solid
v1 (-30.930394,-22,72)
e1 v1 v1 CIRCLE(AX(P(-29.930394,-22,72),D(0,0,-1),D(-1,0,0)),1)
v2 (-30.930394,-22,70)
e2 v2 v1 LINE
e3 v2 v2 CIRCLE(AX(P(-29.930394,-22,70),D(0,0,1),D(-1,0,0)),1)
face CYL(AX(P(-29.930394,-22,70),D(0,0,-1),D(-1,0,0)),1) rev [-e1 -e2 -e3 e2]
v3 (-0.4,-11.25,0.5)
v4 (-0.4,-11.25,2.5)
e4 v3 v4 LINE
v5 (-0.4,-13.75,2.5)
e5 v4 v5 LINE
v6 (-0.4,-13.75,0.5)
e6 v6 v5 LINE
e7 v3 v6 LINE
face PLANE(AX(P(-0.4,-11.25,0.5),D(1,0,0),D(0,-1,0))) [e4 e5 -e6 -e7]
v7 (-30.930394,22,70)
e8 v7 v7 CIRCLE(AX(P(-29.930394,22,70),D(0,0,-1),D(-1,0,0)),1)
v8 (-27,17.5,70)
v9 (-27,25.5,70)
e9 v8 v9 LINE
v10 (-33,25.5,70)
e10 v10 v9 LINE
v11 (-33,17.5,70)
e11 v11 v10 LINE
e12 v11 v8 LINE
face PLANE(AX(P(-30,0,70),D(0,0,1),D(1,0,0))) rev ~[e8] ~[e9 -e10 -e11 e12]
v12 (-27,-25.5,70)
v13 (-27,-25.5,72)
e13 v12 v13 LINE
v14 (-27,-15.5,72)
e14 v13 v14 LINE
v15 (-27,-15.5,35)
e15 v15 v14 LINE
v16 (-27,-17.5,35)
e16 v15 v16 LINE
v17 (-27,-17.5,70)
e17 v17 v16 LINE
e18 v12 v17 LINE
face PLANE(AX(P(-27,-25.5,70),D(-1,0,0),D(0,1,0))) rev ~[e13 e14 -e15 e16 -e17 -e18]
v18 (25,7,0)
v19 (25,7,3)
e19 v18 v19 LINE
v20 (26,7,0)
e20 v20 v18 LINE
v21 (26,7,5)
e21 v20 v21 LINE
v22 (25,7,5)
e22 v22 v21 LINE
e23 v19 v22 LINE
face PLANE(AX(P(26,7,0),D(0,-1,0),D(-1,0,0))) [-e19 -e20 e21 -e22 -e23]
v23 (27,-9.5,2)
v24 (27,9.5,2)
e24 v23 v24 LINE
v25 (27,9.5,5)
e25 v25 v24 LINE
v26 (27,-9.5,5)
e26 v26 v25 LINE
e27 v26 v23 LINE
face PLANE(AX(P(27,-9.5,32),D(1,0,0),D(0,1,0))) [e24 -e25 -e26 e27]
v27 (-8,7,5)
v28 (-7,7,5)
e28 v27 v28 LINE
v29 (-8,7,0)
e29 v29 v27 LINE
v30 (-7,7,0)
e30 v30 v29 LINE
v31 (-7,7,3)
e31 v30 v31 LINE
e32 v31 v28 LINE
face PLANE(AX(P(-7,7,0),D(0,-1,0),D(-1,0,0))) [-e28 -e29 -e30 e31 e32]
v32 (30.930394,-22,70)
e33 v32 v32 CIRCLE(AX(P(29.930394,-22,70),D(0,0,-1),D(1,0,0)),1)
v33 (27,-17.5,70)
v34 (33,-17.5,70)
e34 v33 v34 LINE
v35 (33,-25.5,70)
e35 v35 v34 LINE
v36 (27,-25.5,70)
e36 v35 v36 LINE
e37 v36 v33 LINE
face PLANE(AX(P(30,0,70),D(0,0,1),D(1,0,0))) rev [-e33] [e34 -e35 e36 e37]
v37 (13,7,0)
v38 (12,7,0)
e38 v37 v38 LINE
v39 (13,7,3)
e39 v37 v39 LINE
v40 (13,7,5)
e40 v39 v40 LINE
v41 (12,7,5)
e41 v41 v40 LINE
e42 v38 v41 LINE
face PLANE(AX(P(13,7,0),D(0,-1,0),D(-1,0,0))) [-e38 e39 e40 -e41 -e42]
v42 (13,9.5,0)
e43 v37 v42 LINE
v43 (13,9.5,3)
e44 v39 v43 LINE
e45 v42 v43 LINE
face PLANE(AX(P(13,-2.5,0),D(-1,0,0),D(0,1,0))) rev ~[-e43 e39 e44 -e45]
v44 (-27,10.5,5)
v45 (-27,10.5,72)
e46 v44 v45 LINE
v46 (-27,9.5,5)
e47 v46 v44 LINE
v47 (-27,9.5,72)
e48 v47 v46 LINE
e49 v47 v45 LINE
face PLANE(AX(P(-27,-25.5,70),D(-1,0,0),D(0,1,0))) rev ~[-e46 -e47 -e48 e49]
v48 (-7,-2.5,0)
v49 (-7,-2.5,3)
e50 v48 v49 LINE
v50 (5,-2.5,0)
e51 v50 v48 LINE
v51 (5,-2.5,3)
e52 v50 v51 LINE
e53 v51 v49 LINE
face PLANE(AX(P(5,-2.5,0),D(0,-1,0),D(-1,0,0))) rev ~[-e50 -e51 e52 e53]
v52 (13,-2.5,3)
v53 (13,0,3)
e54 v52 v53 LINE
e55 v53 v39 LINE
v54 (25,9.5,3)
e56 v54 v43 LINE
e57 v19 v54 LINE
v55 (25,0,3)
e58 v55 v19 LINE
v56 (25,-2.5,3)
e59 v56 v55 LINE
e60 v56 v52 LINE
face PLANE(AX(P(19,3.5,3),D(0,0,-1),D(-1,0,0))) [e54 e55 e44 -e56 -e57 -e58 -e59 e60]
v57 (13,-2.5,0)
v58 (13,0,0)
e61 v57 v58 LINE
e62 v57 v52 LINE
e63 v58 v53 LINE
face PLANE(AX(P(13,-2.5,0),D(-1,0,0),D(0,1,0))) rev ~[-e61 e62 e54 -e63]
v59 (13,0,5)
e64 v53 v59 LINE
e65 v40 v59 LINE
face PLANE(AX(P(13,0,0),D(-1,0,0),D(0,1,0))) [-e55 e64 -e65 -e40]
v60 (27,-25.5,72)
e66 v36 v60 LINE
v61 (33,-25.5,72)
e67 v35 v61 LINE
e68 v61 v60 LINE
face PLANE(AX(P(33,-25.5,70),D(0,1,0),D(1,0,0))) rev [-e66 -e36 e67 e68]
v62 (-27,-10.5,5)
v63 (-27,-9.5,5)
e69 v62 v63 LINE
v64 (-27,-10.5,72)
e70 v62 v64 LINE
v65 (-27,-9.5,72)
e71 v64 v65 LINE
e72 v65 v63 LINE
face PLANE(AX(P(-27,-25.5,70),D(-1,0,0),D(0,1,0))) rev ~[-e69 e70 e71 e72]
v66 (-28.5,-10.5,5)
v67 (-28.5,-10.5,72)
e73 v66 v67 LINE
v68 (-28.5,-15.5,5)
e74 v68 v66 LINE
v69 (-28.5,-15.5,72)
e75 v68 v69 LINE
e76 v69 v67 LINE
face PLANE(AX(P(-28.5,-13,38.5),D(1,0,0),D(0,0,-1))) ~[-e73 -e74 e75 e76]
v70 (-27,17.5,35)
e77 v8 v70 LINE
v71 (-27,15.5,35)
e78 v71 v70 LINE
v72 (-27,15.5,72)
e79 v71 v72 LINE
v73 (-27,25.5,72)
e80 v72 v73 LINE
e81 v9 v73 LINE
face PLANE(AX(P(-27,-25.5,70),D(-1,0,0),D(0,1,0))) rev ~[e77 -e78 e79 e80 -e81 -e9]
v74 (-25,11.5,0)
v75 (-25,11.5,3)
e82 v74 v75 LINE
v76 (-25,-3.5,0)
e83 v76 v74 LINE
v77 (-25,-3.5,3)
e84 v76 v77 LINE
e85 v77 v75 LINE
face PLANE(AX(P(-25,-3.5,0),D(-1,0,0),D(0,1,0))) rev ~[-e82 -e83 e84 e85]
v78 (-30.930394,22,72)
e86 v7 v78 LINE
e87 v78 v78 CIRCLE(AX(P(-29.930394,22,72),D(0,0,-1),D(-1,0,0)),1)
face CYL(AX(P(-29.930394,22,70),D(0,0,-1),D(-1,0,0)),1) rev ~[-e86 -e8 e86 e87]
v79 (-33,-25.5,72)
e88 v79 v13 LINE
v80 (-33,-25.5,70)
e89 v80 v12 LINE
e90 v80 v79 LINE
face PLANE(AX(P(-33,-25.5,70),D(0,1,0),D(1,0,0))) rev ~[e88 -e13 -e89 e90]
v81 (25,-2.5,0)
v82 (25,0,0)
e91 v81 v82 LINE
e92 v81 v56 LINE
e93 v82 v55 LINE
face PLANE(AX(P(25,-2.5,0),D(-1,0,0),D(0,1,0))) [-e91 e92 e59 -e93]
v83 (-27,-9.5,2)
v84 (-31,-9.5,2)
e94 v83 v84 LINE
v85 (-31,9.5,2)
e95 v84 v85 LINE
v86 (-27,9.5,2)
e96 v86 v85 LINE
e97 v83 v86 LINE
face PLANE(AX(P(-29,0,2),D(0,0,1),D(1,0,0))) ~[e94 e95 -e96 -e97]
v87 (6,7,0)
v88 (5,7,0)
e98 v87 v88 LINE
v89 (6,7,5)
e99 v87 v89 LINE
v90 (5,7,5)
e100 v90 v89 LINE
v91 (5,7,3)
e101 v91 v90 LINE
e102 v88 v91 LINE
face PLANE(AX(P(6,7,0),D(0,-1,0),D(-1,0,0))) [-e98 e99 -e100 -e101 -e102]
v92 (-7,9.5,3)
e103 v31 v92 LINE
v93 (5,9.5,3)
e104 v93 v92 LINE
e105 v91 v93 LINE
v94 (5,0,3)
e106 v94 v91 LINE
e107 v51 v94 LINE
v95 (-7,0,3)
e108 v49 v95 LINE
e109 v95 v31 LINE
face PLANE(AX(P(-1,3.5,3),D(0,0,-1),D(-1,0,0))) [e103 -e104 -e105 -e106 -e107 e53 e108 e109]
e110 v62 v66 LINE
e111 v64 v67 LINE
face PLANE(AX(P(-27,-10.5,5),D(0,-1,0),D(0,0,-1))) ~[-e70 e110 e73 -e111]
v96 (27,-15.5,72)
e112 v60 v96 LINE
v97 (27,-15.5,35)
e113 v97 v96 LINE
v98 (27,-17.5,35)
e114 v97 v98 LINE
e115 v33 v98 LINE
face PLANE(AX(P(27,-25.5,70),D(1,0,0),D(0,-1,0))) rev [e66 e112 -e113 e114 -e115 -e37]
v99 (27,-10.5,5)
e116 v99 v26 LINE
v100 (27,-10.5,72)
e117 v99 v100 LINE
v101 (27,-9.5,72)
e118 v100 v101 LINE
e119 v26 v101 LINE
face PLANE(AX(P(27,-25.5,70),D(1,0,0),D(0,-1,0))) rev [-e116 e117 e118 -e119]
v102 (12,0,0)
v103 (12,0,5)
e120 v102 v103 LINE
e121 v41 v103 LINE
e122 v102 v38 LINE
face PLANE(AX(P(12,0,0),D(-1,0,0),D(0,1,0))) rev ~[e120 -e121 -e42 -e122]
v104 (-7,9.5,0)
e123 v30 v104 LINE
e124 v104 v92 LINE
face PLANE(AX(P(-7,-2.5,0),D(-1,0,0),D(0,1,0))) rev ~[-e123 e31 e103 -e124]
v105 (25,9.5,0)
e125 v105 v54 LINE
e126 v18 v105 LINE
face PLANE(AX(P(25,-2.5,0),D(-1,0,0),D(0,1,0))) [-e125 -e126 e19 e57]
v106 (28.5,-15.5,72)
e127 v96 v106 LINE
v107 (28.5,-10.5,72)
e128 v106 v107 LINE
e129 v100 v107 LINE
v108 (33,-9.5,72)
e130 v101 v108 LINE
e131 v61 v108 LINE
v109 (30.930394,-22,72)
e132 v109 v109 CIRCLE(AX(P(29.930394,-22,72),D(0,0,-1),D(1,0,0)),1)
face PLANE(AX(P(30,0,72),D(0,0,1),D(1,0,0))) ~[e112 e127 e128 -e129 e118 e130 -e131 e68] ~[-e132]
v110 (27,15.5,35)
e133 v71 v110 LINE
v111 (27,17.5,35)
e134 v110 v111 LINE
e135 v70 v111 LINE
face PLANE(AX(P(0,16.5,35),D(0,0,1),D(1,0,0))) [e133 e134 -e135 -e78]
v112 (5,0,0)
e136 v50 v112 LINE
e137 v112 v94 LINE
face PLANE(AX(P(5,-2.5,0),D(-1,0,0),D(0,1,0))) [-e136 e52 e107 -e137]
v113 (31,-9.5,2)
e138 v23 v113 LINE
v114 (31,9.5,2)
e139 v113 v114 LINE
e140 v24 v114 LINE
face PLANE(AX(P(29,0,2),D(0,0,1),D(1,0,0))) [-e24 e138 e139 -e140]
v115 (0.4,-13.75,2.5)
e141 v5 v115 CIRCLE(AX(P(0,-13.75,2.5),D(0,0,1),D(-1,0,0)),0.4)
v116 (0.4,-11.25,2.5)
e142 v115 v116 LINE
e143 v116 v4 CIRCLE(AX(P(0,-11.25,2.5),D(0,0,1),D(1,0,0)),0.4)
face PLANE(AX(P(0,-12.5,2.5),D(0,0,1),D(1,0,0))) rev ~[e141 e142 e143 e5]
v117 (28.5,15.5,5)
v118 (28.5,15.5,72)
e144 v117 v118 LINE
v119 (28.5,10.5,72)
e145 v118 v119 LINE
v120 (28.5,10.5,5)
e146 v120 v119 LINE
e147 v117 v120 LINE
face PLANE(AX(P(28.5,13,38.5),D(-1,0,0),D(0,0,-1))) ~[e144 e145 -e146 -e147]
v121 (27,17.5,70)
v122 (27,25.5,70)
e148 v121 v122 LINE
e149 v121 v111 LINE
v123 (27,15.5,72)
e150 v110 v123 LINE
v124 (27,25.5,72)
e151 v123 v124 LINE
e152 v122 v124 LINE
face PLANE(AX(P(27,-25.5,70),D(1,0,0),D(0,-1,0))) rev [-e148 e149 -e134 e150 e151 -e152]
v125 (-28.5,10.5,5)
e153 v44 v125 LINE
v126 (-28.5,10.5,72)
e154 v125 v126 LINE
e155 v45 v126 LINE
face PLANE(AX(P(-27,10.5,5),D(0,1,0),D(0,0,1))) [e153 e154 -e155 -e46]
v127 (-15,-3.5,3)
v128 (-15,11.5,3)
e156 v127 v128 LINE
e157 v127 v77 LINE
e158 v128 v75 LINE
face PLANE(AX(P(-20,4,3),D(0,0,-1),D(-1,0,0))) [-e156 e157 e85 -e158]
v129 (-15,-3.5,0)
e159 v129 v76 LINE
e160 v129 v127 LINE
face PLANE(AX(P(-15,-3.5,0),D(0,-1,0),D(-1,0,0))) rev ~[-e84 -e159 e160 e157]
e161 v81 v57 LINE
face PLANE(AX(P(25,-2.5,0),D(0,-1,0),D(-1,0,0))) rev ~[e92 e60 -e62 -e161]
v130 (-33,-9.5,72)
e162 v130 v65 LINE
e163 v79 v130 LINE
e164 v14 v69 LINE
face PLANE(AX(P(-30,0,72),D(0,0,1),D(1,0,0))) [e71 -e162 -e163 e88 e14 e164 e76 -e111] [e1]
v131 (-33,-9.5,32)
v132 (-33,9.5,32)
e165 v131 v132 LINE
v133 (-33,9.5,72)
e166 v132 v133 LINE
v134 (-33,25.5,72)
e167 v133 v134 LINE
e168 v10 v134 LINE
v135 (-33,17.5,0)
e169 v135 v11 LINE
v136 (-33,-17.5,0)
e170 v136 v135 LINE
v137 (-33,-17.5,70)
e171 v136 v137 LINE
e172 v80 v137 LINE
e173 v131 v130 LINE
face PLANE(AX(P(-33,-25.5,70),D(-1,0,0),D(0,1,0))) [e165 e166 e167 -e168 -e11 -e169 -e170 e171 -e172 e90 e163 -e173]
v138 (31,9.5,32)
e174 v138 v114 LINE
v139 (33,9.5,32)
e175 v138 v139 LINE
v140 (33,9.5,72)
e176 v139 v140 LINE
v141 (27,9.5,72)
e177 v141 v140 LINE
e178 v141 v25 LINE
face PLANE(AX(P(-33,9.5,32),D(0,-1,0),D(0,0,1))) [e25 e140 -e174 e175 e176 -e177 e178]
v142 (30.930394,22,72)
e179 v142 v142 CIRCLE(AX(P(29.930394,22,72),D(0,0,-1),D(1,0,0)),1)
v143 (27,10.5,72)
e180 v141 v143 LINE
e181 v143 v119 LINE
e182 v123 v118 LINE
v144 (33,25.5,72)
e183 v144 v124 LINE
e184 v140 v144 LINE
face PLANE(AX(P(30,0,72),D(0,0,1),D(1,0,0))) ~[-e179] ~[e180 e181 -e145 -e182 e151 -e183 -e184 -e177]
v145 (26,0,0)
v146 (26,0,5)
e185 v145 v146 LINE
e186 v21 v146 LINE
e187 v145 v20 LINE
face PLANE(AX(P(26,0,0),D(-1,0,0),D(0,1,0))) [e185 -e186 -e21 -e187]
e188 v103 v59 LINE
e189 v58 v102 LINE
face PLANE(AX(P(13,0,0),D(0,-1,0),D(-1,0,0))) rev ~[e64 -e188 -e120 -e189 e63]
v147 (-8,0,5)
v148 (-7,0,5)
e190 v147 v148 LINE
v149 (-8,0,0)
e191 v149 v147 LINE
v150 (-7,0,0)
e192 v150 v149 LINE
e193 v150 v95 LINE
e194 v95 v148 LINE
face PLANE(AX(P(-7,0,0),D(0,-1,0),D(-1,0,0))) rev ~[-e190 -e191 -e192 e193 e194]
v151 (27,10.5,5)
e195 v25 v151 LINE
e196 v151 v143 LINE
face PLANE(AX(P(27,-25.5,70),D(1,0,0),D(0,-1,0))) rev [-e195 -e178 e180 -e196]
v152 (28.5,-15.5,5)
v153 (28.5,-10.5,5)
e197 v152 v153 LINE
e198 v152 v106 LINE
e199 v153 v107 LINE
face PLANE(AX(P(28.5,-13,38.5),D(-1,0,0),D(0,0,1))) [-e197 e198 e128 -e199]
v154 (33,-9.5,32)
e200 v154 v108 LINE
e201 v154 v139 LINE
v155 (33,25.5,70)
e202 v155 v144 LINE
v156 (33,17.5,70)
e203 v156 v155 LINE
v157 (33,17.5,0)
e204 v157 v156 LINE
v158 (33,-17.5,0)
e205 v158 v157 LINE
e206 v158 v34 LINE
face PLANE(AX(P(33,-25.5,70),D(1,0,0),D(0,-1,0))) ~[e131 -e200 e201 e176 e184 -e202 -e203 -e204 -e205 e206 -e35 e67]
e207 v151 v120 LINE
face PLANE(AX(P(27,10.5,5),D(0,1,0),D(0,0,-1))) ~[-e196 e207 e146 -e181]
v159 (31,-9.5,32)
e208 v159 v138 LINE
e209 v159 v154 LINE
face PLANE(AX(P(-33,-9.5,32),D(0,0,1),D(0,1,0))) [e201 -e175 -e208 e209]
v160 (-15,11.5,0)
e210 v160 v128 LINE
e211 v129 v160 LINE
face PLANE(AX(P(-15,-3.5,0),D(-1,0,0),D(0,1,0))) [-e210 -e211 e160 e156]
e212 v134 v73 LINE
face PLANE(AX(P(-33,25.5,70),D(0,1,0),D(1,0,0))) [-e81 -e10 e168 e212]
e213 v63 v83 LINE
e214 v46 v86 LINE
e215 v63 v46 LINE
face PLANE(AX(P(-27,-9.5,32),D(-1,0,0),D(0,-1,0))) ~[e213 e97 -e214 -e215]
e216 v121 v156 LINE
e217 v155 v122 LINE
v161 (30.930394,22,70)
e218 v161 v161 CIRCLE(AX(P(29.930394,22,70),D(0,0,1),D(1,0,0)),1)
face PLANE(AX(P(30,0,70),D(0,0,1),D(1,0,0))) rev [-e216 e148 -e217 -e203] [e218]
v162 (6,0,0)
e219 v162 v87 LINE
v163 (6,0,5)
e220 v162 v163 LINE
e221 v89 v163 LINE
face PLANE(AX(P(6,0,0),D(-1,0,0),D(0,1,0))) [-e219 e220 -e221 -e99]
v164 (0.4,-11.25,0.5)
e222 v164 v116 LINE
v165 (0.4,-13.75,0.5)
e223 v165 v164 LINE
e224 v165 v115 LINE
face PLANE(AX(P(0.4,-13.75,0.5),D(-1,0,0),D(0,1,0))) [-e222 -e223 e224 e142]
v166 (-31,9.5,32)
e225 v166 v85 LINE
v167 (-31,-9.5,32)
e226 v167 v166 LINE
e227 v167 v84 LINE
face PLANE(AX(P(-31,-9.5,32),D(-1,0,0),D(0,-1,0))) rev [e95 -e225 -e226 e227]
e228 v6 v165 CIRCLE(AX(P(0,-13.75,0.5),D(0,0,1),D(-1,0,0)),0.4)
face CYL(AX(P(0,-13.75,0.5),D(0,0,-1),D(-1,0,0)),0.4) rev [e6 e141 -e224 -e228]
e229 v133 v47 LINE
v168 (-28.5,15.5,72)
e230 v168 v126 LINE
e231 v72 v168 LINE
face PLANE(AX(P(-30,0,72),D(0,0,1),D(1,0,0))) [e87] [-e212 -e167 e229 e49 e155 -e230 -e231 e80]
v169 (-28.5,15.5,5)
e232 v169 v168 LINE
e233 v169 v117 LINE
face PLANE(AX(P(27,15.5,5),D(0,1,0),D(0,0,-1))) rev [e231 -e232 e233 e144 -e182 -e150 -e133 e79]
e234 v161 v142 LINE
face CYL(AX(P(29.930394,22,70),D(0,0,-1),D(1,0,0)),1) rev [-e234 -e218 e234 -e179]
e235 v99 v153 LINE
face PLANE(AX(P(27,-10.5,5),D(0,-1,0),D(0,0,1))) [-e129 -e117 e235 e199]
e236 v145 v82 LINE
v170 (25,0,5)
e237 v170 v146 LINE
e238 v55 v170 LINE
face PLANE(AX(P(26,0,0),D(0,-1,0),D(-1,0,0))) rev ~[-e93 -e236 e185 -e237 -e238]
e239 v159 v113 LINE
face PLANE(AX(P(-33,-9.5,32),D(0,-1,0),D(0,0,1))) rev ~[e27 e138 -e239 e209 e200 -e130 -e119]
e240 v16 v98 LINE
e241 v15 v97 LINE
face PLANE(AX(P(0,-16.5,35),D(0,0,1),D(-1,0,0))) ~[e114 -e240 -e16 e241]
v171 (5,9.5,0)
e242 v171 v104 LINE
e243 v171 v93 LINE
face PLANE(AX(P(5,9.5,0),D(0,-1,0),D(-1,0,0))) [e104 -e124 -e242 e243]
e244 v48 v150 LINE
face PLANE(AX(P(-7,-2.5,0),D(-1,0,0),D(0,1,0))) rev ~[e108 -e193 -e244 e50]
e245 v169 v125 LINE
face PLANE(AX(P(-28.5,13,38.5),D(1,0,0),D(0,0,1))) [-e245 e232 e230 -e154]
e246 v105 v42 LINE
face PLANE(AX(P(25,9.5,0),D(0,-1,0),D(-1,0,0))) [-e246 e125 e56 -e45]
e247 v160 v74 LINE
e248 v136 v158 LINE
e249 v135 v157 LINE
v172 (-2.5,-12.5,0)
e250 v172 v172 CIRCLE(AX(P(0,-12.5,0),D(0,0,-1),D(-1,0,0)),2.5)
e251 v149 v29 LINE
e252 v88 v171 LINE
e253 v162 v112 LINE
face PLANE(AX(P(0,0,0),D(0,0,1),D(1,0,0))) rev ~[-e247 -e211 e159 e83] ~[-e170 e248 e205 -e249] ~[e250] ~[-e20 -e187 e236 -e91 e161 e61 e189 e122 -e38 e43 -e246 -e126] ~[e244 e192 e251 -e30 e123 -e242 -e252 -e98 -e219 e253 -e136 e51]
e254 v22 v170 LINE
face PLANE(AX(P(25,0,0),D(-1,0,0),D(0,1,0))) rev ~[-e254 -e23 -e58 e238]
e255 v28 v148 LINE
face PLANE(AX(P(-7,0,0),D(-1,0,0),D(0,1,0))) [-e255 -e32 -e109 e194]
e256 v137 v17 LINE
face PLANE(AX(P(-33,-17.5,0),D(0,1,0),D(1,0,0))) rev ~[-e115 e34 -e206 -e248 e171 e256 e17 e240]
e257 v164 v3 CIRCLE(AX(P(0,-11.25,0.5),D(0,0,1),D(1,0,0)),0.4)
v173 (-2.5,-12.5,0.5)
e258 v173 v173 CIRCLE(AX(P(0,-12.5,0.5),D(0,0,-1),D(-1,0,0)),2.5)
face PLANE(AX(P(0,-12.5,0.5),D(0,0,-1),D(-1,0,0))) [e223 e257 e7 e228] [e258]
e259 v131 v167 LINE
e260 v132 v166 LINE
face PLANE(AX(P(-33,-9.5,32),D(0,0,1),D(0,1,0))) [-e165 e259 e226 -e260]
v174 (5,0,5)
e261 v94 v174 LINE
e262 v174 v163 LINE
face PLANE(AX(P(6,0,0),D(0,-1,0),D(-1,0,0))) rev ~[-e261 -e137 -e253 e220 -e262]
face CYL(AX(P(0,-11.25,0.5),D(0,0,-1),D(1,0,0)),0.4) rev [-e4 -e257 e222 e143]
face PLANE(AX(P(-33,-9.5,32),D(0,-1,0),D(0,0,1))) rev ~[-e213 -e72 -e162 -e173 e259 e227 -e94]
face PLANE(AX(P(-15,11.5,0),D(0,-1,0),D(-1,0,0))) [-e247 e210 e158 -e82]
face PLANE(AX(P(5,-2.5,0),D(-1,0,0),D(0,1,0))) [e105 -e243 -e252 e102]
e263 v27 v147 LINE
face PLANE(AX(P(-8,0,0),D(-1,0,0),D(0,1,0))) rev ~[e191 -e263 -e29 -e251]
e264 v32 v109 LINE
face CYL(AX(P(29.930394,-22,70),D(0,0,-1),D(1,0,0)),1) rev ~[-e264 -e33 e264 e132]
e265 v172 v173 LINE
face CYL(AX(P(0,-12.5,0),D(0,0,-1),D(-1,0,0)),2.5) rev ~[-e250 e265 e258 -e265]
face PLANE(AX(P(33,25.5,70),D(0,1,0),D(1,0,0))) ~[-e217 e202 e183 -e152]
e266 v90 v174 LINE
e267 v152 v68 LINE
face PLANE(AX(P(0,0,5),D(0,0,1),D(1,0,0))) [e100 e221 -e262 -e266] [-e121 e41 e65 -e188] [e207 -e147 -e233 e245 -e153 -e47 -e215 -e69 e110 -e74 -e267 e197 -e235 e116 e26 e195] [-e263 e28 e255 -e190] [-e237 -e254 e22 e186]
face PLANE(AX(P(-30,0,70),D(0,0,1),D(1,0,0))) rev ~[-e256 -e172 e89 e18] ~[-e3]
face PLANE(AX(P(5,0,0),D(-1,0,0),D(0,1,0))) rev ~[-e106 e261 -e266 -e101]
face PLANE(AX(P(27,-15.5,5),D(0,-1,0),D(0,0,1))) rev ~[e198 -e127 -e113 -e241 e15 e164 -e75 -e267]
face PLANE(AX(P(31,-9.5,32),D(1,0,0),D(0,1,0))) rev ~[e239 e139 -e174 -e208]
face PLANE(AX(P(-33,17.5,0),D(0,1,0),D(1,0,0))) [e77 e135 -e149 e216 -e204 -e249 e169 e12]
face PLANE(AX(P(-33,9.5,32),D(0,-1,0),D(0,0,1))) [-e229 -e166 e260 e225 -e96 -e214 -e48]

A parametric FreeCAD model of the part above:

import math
import FreeCAD as App
import Part
import Sketcher

V = App.Vector
Q = App.Units.Quantity

doc = App.newDocument("Part")
params = doc.addObject("Spreadsheet::Sheet", "Params")
for row, (alias, value) in enumerate([
    ("sketch1_width", "66 mm"),
    ("sketch1_height", "35 mm"),
    ("pad1_length", "70 mm"),
    ("sketch2_width", "54 mm"),
    ("sketch2_height", "35 mm"),
    ("pocket1_length", "65 mm"),
    ("sketch3_width", "54 mm"),
    ("sketch3_height", "2 mm"),
    ("pad2_length", "30 mm"),
    ("sketch4_width", "6 mm"),
    ("sketch4_height", "51 mm"),
    ("pad3_length", "2 mm"),
    ("sketch5_diameter", "2 mm"),
    ("pocket2_length", "10 mm"),
    ("sketch6_diameter", "2 mm"),
    ("pocket3_length", "10 mm"),
    ("sketch7_diameter", "5 mm"),
    ("pocket4_length", "0.5 mm"),
    ("sketch8_radius", "0.4 mm"),
    ("sketch8_height", "2.5 mm"),
    ("pocket5_length", "2 mm"),
    ("sketch9_width", "12 mm"),
    ("sketch9_width2", "10 mm"),
    ("sketch9_height", "15 mm"),
    ("pocket6_length", "3 mm"),
    ("sketch10_width", "19 mm"),
    ("sketch10_height", "40 mm"),
    ("sketch11_width", "4 mm"),
    ("sketch11_height", "19 mm"),
    ("pocket8_length", "30 mm"),
    ("sketch12_width", "5 mm"),
    ("sketch12_height", "67 mm"),
    ("pocket9_length", "1.5 mm"),
    ("sketch13_width", "5 mm"),
    ("sketch13_height", "67 mm"),
    ("pocket10_length", "1.5 mm"),
    ("sketch14_width", "1 mm"),
    ("sketch14_height", "7 mm"),
], start=1):
    params.set(f"A{row}", alias)
    params.set(f"B{row}", "=" + value)
    params.setAlias(f"B{row}", alias)

body = doc.addObject("PartDesign::Body", "Body")

# Sketch on XY plane
sketch1 = doc.addObject("Sketcher::SketchObject", "Sketch")
body.addObject(sketch1)
sketch1.AttachmentSupport = (doc.XY_Plane, [""])
sketch1.MapMode = "FlatFace"
sketch1.addGeometry([
    Part.LineSegment(V(-33, 17.5, 0), V(-33, -17.5, 0)),
    Part.LineSegment(V(-33, -17.5, 0), V(33, -17.5, 0)),
    Part.LineSegment(V(33, -17.5, 0), V(33, 17.5, 0)),
    Part.LineSegment(V(33, 17.5, 0), V(-33, 17.5, 0)),
], False)
sketch1.addConstraint([
    Sketcher.Constraint("Coincident", 0, 2, 1, 1),
    Sketcher.Constraint("Coincident", 1, 2, 2, 1),
    Sketcher.Constraint("Coincident", 2, 2, 3, 1),
    Sketcher.Constraint("Coincident", 3, 2, 0, 1),
    Sketcher.Constraint("Vertical", 0),
    Sketcher.Constraint("Horizontal", 1),
    Sketcher.Constraint("Vertical", 2),
    Sketcher.Constraint("Horizontal", 3),
    Sketcher.Constraint("Symmetric", 0, 2, 2, 2, -1, 1),
    Sketcher.Constraint("DistanceX", 1, 1, 1, 2, Q("66 mm")),
    Sketcher.Constraint("DistanceY", 0, 2, 0, 1, Q("35 mm")),
])
sketch1.setExpression("Constraints[9]", "Params.sketch1_width")
sketch1.setExpression("Constraints[10]", "Params.sketch1_height")
pad1 = doc.addObject("PartDesign::Pad", "Pad")
body.addObject(pad1)
pad1.Profile = sketch1
pad1.setExpression("Length", "Params.pad1_length")

# Sketch on XY plane
sketch2 = doc.addObject("Sketcher::SketchObject", "Sketch001")
body.addObject(sketch2)
sketch2.AttachmentSupport = (doc.XY_Plane, [""])
sketch2.MapMode = "FlatFace"
sketch2.AttachmentOffset = App.Placement(V(0, 0, 70), App.Rotation())
sketch2.addGeometry([
    Part.LineSegment(V(-27, 17.5, 0), V(-27, -17.5, 0)),
    Part.LineSegment(V(-27, -17.5, 0), V(27, -17.5, 0)),
    Part.LineSegment(V(27, -17.5, 0), V(27, 17.5, 0)),
    Part.LineSegment(V(27, 17.5, 0), V(-27, 17.5, 0)),
], False)
sketch2.addConstraint([
    Sketcher.Constraint("Coincident", 0, 2, 1, 1),
    Sketcher.Constraint("Coincident", 1, 2, 2, 1),
    Sketcher.Constraint("Coincident", 2, 2, 3, 1),
    Sketcher.Constraint("Coincident", 3, 2, 0, 1),
    Sketcher.Constraint("Vertical", 0),
    Sketcher.Constraint("Horizontal", 1),
    Sketcher.Constraint("Vertical", 2),
    Sketcher.Constraint("Horizontal", 3),
    Sketcher.Constraint("Symmetric", 0, 2, 2, 2, -1, 1),
    Sketcher.Constraint("DistanceX", 1, 1, 1, 2, Q("54 mm")),
    Sketcher.Constraint("DistanceY", 0, 2, 0, 1, Q("35 mm")),
])
sketch2.setExpression("Constraints[9]", "Params.sketch2_width")
sketch2.setExpression("Constraints[10]", "Params.sketch2_height")
pocket1 = doc.addObject("PartDesign::Pocket", "Pocket")
body.addObject(pocket1)
pocket1.Profile = sketch2
pocket1.setExpression("Length", "Params.pocket1_length")

# Sketch on XY plane
sketch3 = doc.addObject("Sketcher::SketchObject", "Sketch002")
body.addObject(sketch3)
sketch3.AttachmentSupport = (doc.XY_Plane, [""])
sketch3.MapMode = "FlatFace"
sketch3.AttachmentOffset = App.Placement(V(0, 0, 5), App.Rotation())
sketch3.addGeometry([
    Part.LineSegment(V(-27, 17.5, 0), V(-27, 15.5, 0)),
    Part.LineSegment(V(-27, 15.5, 0), V(27, 15.5, 0)),
    Part.LineSegment(V(27, 15.5, 0), V(27, 17.5, 0)),
    Part.LineSegment(V(27, 17.5, 0), V(-27, 17.5, 0)),
], False)
sketch3.addConstraint([
    Sketcher.Constraint("Coincident", 0, 2, 1, 1),
    Sketcher.Constraint("Coincident", 1, 2, 2, 1),
    Sketcher.Constraint("Coincident", 2, 2, 3, 1),
    Sketcher.Constraint("Coincident", 3, 2, 0, 1),
    Sketcher.Constraint("Vertical", 0),
    Sketcher.Constraint("Horizontal", 1),
    Sketcher.Constraint("Vertical", 2),
    Sketcher.Constraint("Horizontal", 3),
    Sketcher.Constraint("DistanceX", 1, 1, 1, 2, Q("54 mm")),
    Sketcher.Constraint("DistanceY", 0, 2, 0, 1, Q("2 mm")),
    Sketcher.Constraint("DistanceX", 0, 2, -1, 1, Q("27 mm")),
    Sketcher.Constraint("DistanceY", -1, 1, 0, 2, Q("15.5 mm")),
])
sketch3.setExpression("Constraints[8]", "Params.sketch3_width")
sketch3.setExpression("Constraints[9]", "Params.sketch3_height")
pad2 = doc.addObject("PartDesign::Pad", "Pad001")
body.addObject(pad2)
pad2.Profile = sketch3
pad2.setExpression("Length", "Params.pad2_length")
doc.recompute()

mirrored = doc.addObject("PartDesign::Mirrored", "Mirrored")
body.addObject(mirrored)
mirrored.Originals = [pad2]
mirrored.MirrorPlane = (doc.XZ_Plane, [""])
body.Tip = mirrored

# Sketch on XY plane
sketch4 = doc.addObject("Sketcher::SketchObject", "Sketch003")
body.addObject(sketch4)
sketch4.AttachmentSupport = (doc.XY_Plane, [""])
sketch4.MapMode = "FlatFace"
sketch4.AttachmentOffset = App.Placement(V(0, 0, 70), App.Rotation())
sketch4.addGeometry([
    Part.LineSegment(V(-33, 25.5, 0), V(-33, -25.5, 0)),
    Part.LineSegment(V(-33, -25.5, 0), V(-27, -25.5, 0)),
    Part.LineSegment(V(-27, -25.5, 0), V(-27, 25.5, 0)),
    Part.LineSegment(V(-27, 25.5, 0), V(-33, 25.5, 0)),
], False)
sketch4.addConstraint([
    Sketcher.Constraint("Coincident", 0, 2, 1, 1),
    Sketcher.Constraint("Coincident", 1, 2, 2, 1),
    Sketcher.Constraint("Coincident", 2, 2, 3, 1),
    Sketcher.Constraint("Coincident", 3, 2, 0, 1),
    Sketcher.Constraint("Vertical", 0),
    Sketcher.Constraint("Horizontal", 1),
    Sketcher.Constraint("Vertical", 2),
    Sketcher.Constraint("Horizontal", 3),
    Sketcher.Constraint("DistanceX", 1, 1, 1, 2, Q("6 mm")),
    Sketcher.Constraint("DistanceY", 0, 2, 0, 1, Q("51 mm")),
    Sketcher.Constraint("DistanceX", 0, 2, -1, 1, Q("33 mm")),
    Sketcher.Constraint("DistanceY", 0, 2, -1, 1, Q("25.5 mm")),
])
sketch4.setExpression("Constraints[8]", "Params.sketch4_width")
sketch4.setExpression("Constraints[9]", "Params.sketch4_height")
pad3 = doc.addObject("PartDesign::Pad", "Pad002")
body.addObject(pad3)
pad3.Profile = sketch4
pad3.setExpression("Length", "Params.pad3_length")

# Sketch on XY plane
sketch5 = doc.addObject("Sketcher::SketchObject", "Sketch004")
body.addObject(sketch5)
sketch5.AttachmentSupport = (doc.XY_Plane, [""])
sketch5.MapMode = "FlatFace"
sketch5.AttachmentOffset = App.Placement(V(0, 0, 70), App.Rotation())
sketch5.addGeometry(Part.Circle(V(-29.930394, 22, 0), V(0, 0, 1), 1), False)
sketch5.addConstraint([
    Sketcher.Constraint("Diameter", 0, Q("2 mm")),
    Sketcher.Constraint("DistanceY", -1, 1, 0, 3, Q("22 mm")),
    Sketcher.Constraint("DistanceX", 0, 3, -1, 1, Q("29.930394 mm")),
])
sketch5.setExpression("Constraints[0]", "Params.sketch5_diameter")
pocket2 = doc.addObject("PartDesign::Pocket", "Pocket001")
body.addObject(pocket2)
pocket2.Profile = sketch5
pocket2.setExpression("Length", "Params.pocket2_length")
pocket2.Reversed = True
doc.recompute()

mirrored2 = doc.addObject("PartDesign::Mirrored", "Mirrored001")
body.addObject(mirrored2)
mirrored2.Originals = [pocket2]
mirrored2.MirrorPlane = (doc.XZ_Plane, [""])
body.Tip = mirrored2
doc.recompute()

mirrored3 = doc.addObject("PartDesign::Mirrored", "Mirrored002")
body.addObject(mirrored3)
mirrored3.Originals = [pad3, pocket2]
mirrored3.MirrorPlane = (doc.YZ_Plane, [""])
body.Tip = mirrored3

# Sketch on XY plane
sketch6 = doc.addObject("Sketcher::SketchObject", "Sketch005")
body.addObject(sketch6)
sketch6.AttachmentSupport = (doc.XY_Plane, [""])
sketch6.MapMode = "FlatFace"
sketch6.AttachmentOffset = App.Placement(V(0, 0, 70), App.Rotation())
sketch6.addGeometry(Part.Circle(V(29.930394, -22, 0), V(0, 0, 1), 1), False)
sketch6.addConstraint([
    Sketcher.Constraint("Diameter", 0, Q("2 mm")),
    Sketcher.Constraint("DistanceY", 0, 3, -1, 1, Q("22 mm")),
    Sketcher.Constraint("DistanceX", -1, 1, 0, 3, Q("29.930394 mm")),
])
sketch6.setExpression("Constraints[0]", "Params.sketch6_diameter")
pocket3 = doc.addObject("PartDesign::Pocket", "Pocket002")
body.addObject(pocket3)
pocket3.Profile = sketch6
pocket3.setExpression("Length", "Params.pocket3_length")
pocket3.Reversed = True

# Sketch on XY plane
sketch7 = doc.addObject("Sketcher::SketchObject", "Sketch006")
body.addObject(sketch7)
sketch7.AttachmentSupport = (doc.XY_Plane, [""])
sketch7.MapMode = "FlatFace"
sketch7.addGeometry(Part.Circle(V(0, -12.5, 0), V(0, 0, 1), 2.5), False)
sketch7.addConstraint([
    Sketcher.Constraint("PointOnObject", 0, 3, -2),
    Sketcher.Constraint("Diameter", 0, Q("5 mm")),
    Sketcher.Constraint("DistanceY", 0, 3, -1, 1, Q("12.5 mm")),
])
sketch7.setExpression("Constraints[1]", "Params.sketch7_diameter")
pocket4 = doc.addObject("PartDesign::Pocket", "Pocket003")
body.addObject(pocket4)
pocket4.Profile = sketch7
pocket4.setExpression("Length", "Params.pocket4_length")
pocket4.Reversed = True

# Sketch on XY plane
sketch8 = doc.addObject("Sketcher::SketchObject", "Sketch007")
body.addObject(sketch8)
sketch8.AttachmentSupport = (doc.XY_Plane, [""])
sketch8.MapMode = "FlatFace"
sketch8.AttachmentOffset = App.Placement(V(0, 0, 0.5), App.Rotation())
sketch8.addGeometry([
    Part.LineSegment(V(-0.4, -13.75, 0), V(-0.4, -11.25, 0)),
    Part.ArcOfCircle(Part.Circle(V(0, -11.25, 0), V(0, 0, 1), 0.4), math.radians(0), math.radians(180)),
    Part.LineSegment(V(0.4, -11.25, 0), V(0.4, -13.75, 0)),
    Part.ArcOfCircle(Part.Circle(V(0, -13.75, 0), V(0, 0, 1), 0.4), math.radians(180), math.radians(360)),
], False)
sketch8.addConstraint([
    Sketcher.Constraint("Tangent", 0, 2, 1, 2),
    Sketcher.Constraint("Tangent", 1, 1, 2, 1),
    Sketcher.Constraint("Tangent", 2, 2, 3, 2),
    Sketcher.Constraint("Tangent", 3, 1, 0, 1),
    Sketcher.Constraint("Vertical", 0),
    Sketcher.Constraint("Vertical", 2),
    Sketcher.Constraint("PointOnObject", 1, 3, -2),
    Sketcher.Constraint("Radius", 1, Q("0.4 mm")),
    Sketcher.Constraint("DistanceY", 0, 1, 0, 2, Q("2.5 mm")),
    Sketcher.Constraint("DistanceY", 1, 3, -1, 1, Q("11.25 mm")),
])
sketch8.setExpression("Constraints[7]", "Params.sketch8_radius")
sketch8.setExpression("Constraints[8]", "Params.sketch8_height")
pocket5 = doc.addObject("PartDesign::Pocket", "Pocket004")
body.addObject(pocket5)
pocket5.Profile = sketch8
pocket5.setExpression("Length", "Params.pocket5_length")
pocket5.Reversed = True

# Sketch on XY plane
sketch9 = doc.addObject("Sketcher::SketchObject", "Sketch008")
body.addObject(sketch9)
sketch9.AttachmentSupport = (doc.XY_Plane, [""])
sketch9.MapMode = "FlatFace"
sketch9.addGeometry([
    Part.LineSegment(V(5, 9.5, 0), V(5, -2.5, 0)),  # 0
    Part.LineSegment(V(5, -2.5, 0), V(-7, -2.5, 0)),  # 1
    Part.LineSegment(V(-7, -2.5, 0), V(-7, 9.5, 0)),  # 2
    Part.LineSegment(V(-7, 9.5, 0), V(5, 9.5, 0)),  # 3
    Part.LineSegment(V(25, 9.5, 0), V(25, -2.5, 0)),  # 4
    Part.LineSegment(V(25, -2.5, 0), V(13, -2.5, 0)),  # 5
    Part.LineSegment(V(13, -2.5, 0), V(13, 9.5, 0)),  # 6
    Part.LineSegment(V(13, 9.5, 0), V(25, 9.5, 0)),  # 7
    Part.LineSegment(V(-15, 11.5, 0), V(-15, -3.5, 0)),  # 8
    Part.LineSegment(V(-15, -3.5, 0), V(-25, -3.5, 0)),  # 9
    Part.LineSegment(V(-25, -3.5, 0), V(-25, 11.5, 0)),  # 10
    Part.LineSegment(V(-25, 11.5, 0), V(-15, 11.5, 0)),  # 11
], False)
sketch9.addConstraint([
    Sketcher.Constraint("Coincident", 0, 2, 1, 1),
    Sketcher.Constraint("Coincident", 1, 2, 2, 1),
    Sketcher.Constraint("Coincident", 2, 2, 3, 1),
    Sketcher.Constraint("Coincident", 3, 2, 0, 1),
    Sketcher.Constraint("Coincident", 4, 2, 5, 1),
    Sketcher.Constraint("Coincident", 5, 2, 6, 1),
    Sketcher.Constraint("Coincident", 6, 2, 7, 1),
    Sketcher.Constraint("Coincident", 7, 2, 4, 1),
    Sketcher.Constraint("Coincident", 8, 2, 9, 1),
    Sketcher.Constraint("Coincident", 9, 2, 10, 1),
    Sketcher.Constraint("Coincident", 10, 2, 11, 1),
    Sketcher.Constraint("Coincident", 11, 2, 8, 1),
    Sketcher.Constraint("Vertical", 0),
    Sketcher.Constraint("Horizontal", 1),
    Sketcher.Constraint("Vertical", 2),
    Sketcher.Constraint("Horizontal", 3),
    Sketcher.Constraint("Vertical", 4),
    Sketcher.Constraint("Horizontal", 5),
    Sketcher.Constraint("Vertical", 6),
    Sketcher.Constraint("Horizontal", 7),
    Sketcher.Constraint("Vertical", 8),
    Sketcher.Constraint("Horizontal", 9),
    Sketcher.Constraint("Vertical", 10),
    Sketcher.Constraint("Horizontal", 11),
    Sketcher.Constraint("Horizontal", 1, 2, 4, 2),
    Sketcher.Constraint("Horizontal", 3, 2, 6, 2),
    Sketcher.Constraint("Equal", 3, 5),
    Sketcher.Constraint("Equal", 7, 0),
    Sketcher.Constraint("DistanceX", 1, 2, 1, 1, Q("12 mm")),
    Sketcher.Constraint("DistanceX", 9, 2, 9, 1, Q("10 mm")),
    Sketcher.Constraint("DistanceY", 8, 2, 8, 1, Q("15 mm")),
    Sketcher.Constraint("DistanceX", -1, 1, 0, 2, Q("5 mm")),
    Sketcher.Constraint("DistanceX", -1, 1, 4, 2, Q("25 mm")),
    Sketcher.Constraint("DistanceX", 8, 2, -1, 1, Q("15 mm")),
    Sketcher.Constraint("DistanceY", 8, 2, 1, 2, Q("1 mm")),
    Sketcher.Constraint("DistanceY", 0, 2, -1, 1, Q("2.5 mm")),
])
sketch9.setExpression("Constraints[28]", "Params.sketch9_width")
sketch9.setExpression("Constraints[29]", "Params.sketch9_width2")
sketch9.setExpression("Constraints[30]", "Params.sketch9_height")
pocket6 = doc.addObject("PartDesign::Pocket", "Pocket005")
body.addObject(pocket6)
pocket6.Profile = sketch9
pocket6.setExpression("Length", "Params.pocket6_length")
pocket6.Reversed = True

# Sketch on YZ plane
sketch10 = doc.addObject("Sketcher::SketchObject", "Sketch009")
body.addObject(sketch10)
sketch10.AttachmentSupport = (doc.YZ_Plane, [""])
sketch10.MapMode = "FlatFace"
sketch10.AttachmentOffset = App.Placement(V(0, 0, -33), App.Rotation())
sketch10.addGeometry([
    Part.LineSegment(V(9.5, 32, 0), V(-9.5, 32, 0)),
    Part.LineSegment(V(-9.5, 32, 0), V(-9.5, 72, 0)),
    Part.LineSegment(V(-9.5, 72, 0), V(9.5, 72, 0)),
    Part.LineSegment(V(9.5, 72, 0), V(9.5, 32, 0)),
], False)
sketch10.addConstraint([
    Sketcher.Constraint("Coincident", 0, 2, 1, 1),
    Sketcher.Constraint("Coincident", 1, 2, 2, 1),
    Sketcher.Constraint("Coincident", 2, 2, 3, 1),
    Sketcher.Constraint("Coincident", 3, 2, 0, 1),
    Sketcher.Constraint("Horizontal", 0),
    Sketcher.Constraint("Vertical", 1),
    Sketcher.Constraint("Horizontal", 2),
    Sketcher.Constraint("Vertical", 3),
    Sketcher.Constraint("DistanceX", 0, 2, 0, 1, Q("19 mm")),
    Sketcher.Constraint("DistanceY", 1, 1, 1, 2, Q("40 mm")),
    Sketcher.Constraint("DistanceY", -1, 1, 0, 2, Q("32 mm")),
    Sketcher.Constraint("DistanceX", 0, 2, -1, 1, Q("9.5 mm")),
])
sketch10.setExpression("Constraints[8]", "Params.sketch10_width")
sketch10.setExpression("Constraints[9]", "Params.sketch10_height")
pocket7 = doc.addObject("PartDesign::Pocket", "Pocket006")
body.addObject(pocket7)
pocket7.Profile = sketch10
pocket7.Type = "ThroughAll"
pocket7.Reversed = True

# Sketch on XY plane
sketch11 = doc.addObject("Sketcher::SketchObject", "Sketch010")
body.addObject(sketch11)
sketch11.AttachmentSupport = (doc.XY_Plane, [""])
sketch11.MapMode = "FlatFace"
sketch11.AttachmentOffset = App.Placement(V(0, 0, 32), App.Rotation())
sketch11.addGeometry([
    Part.LineSegment(V(27, 9.5, 0), V(27, -9.5, 0)),
    Part.LineSegment(V(27, -9.5, 0), V(31, -9.5, 0)),
    Part.LineSegment(V(31, -9.5, 0), V(31, 9.5, 0)),
    Part.LineSegment(V(31, 9.5, 0), V(27, 9.5, 0)),
], False)
sketch11.addConstraint([
    Sketcher.Constraint("Coincident", 0, 2, 1, 1),
    Sketcher.Constraint("Coincident", 1, 2, 2, 1),
    Sketcher.Constraint("Coincident", 2, 2, 3, 1),
    Sketcher.Constraint("Coincident", 3, 2, 0, 1),
    Sketcher.Constraint("Vertical", 0),
    Sketcher.Constraint("Horizontal", 1),
    Sketcher.Constraint("Vertical", 2),
    Sketcher.Constraint("Horizontal", 3),
    Sketcher.Constraint("DistanceX", 1, 1, 1, 2, Q("4 mm")),
    Sketcher.Constraint("DistanceY", 0, 2, 0, 1, Q("19 mm")),
    Sketcher.Constraint("DistanceX", -1, 1, 0, 2, Q("27 mm")),
    Sketcher.Constraint("DistanceY", 0, 2, -1, 1, Q("9.5 mm")),
])
sketch11.setExpression("Constraints[8]", "Params.sketch11_width")
sketch11.setExpression("Constraints[9]", "Params.sketch11_height")
pocket8 = doc.addObject("PartDesign::Pocket", "Pocket007")
body.addObject(pocket8)
pocket8.Profile = sketch11
pocket8.setExpression("Length", "Params.pocket8_length")

# Sketch on YZ plane
sketch12 = doc.addObject("Sketcher::SketchObject", "Sketch011")
body.addObject(sketch12)
sketch12.AttachmentSupport = (doc.YZ_Plane, [""])
sketch12.MapMode = "FlatFace"
sketch12.AttachmentOffset = App.Placement(V(0, 0, 27), App.Rotation())
sketch12.addGeometry([
    Part.LineSegment(V(-10.5, 5, 0), V(-15.5, 5, 0)),
    Part.LineSegment(V(-15.5, 5, 0), V(-15.5, 72, 0)),
    Part.LineSegment(V(-15.5, 72, 0), V(-10.5, 72, 0)),
    Part.LineSegment(V(-10.5, 72, 0), V(-10.5, 5, 0)),
], False)
sketch12.addConstraint([
    Sketcher.Constraint("Coincident", 0, 2, 1, 1),
    Sketcher.Constraint("Coincident", 1, 2, 2, 1),
    Sketcher.Constraint("Coincident", 2, 2, 3, 1),
    Sketcher.Constraint("Coincident", 3, 2, 0, 1),
    Sketcher.Constraint("Horizontal", 0),
    Sketcher.Constraint("Vertical", 1),
    Sketcher.Constraint("Horizontal", 2),
    Sketcher.Constraint("Vertical", 3),
    Sketcher.Constraint("DistanceX", 0, 2, 0, 1, Q("5 mm")),
    Sketcher.Constraint("DistanceY", 1, 1, 1, 2, Q("67 mm")),
    Sketcher.Constraint("DistanceY", -1, 1, 0, 2, Q("5 mm")),
    Sketcher.Constraint("DistanceX", 0, 2, -1, 1, Q("15.5 mm")),
])
sketch12.setExpression("Constraints[8]", "Params.sketch12_width")
sketch12.setExpression("Constraints[9]", "Params.sketch12_height")
pocket9 = doc.addObject("PartDesign::Pocket", "Pocket008")
body.addObject(pocket9)
pocket9.Profile = sketch12
pocket9.setExpression("Length", "Params.pocket9_length")
pocket9.Reversed = True
doc.recompute()

mirrored4 = doc.addObject("PartDesign::Mirrored", "Mirrored003")
body.addObject(mirrored4)
mirrored4.Originals = [pocket9]
mirrored4.MirrorPlane = (doc.XZ_Plane, [""])
body.Tip = mirrored4
doc.recompute()

mirrored5 = doc.addObject("PartDesign::Mirrored", "Mirrored004")
body.addObject(mirrored5)
mirrored5.Originals = [pocket9, pocket8]
mirrored5.MirrorPlane = (doc.YZ_Plane, [""])
body.Tip = mirrored5

# Sketch on YZ plane
sketch13 = doc.addObject("Sketcher::SketchObject", "Sketch012")
body.addObject(sketch13)
sketch13.AttachmentSupport = (doc.YZ_Plane, [""])
sketch13.MapMode = "FlatFace"
sketch13.AttachmentOffset = App.Placement(V(0, 0, -27), App.Rotation())
sketch13.addGeometry([
    Part.LineSegment(V(10.5, 5, 0), V(15.5, 5, 0)),
    Part.LineSegment(V(15.5, 5, 0), V(15.5, 72, 0)),
    Part.LineSegment(V(15.5, 72, 0), V(10.5, 72, 0)),
    Part.LineSegment(V(10.5, 72, 0), V(10.5, 5, 0)),
], False)
sketch13.addConstraint([
    Sketcher.Constraint("Coincident", 0, 2, 1, 1),
    Sketcher.Constraint("Coincident", 1, 2, 2, 1),
    Sketcher.Constraint("Coincident", 2, 2, 3, 1),
    Sketcher.Constraint("Coincident", 3, 2, 0, 1),
    Sketcher.Constraint("Horizontal", 0),
    Sketcher.Constraint("Vertical", 1),
    Sketcher.Constraint("Horizontal", 2),
    Sketcher.Constraint("Vertical", 3),
    Sketcher.Constraint("DistanceX", 0, 1, 0, 2, Q("5 mm")),
    Sketcher.Constraint("DistanceY", 1, 1, 1, 2, Q("67 mm")),
    Sketcher.Constraint("DistanceY", -1, 1, 0, 2, Q("5 mm")),
    Sketcher.Constraint("DistanceX", -1, 1, 0, 2, Q("15.5 mm")),
])
sketch13.setExpression("Constraints[8]", "Params.sketch13_width")
sketch13.setExpression("Constraints[9]", "Params.sketch13_height")
pocket10 = doc.addObject("PartDesign::Pocket", "Pocket009")
body.addObject(pocket10)
pocket10.Profile = sketch13
pocket10.setExpression("Length", "Params.pocket10_length")

# Sketch on XY plane
sketch14 = doc.addObject("Sketcher::SketchObject", "Sketch013")
body.addObject(sketch14)
sketch14.AttachmentSupport = (doc.XY_Plane, [""])
sketch14.MapMode = "FlatFace"
sketch14.addGeometry([
    Part.LineSegment(V(13, 7, 0), V(13, 0, 0)),  # 0
    Part.LineSegment(V(13, 0, 0), V(12, 0, 0)),  # 1
    Part.LineSegment(V(12, 0, 0), V(12, 7, 0)),  # 2
    Part.LineSegment(V(12, 7, 0), V(13, 7, 0)),  # 3
    Part.LineSegment(V(26, 7, 0), V(26, 0, 0)),  # 4
    Part.LineSegment(V(26, 0, 0), V(25, 0, 0)),  # 5
    Part.LineSegment(V(25, 0, 0), V(25, 7, 0)),  # 6
    Part.LineSegment(V(25, 7, 0), V(26, 7, 0)),  # 7
    Part.LineSegment(V(6, 7, 0), V(6, 0, 0)),  # 8
    Part.LineSegment(V(6, 0, 0), V(5, 0, 0)),  # 9
    Part.LineSegment(V(5, 0, 0), V(5, 7, 0)),  # 10
    Part.LineSegment(V(5, 7, 0), V(6, 7, 0)),  # 11
    Part.LineSegment(V(-7, 7, 0), V(-7, 0, 0)),  # 12
    Part.LineSegment(V(-7, 0, 0), V(-8, 0, 0)),  # 13
    Part.LineSegment(V(-8, 0, 0), V(-8, 7, 0)),  # 14
    Part.LineSegment(V(-8, 7, 0), V(-7, 7, 0)),  # 15
], False)
sketch14.addConstraint([
    Sketcher.Constraint("Coincident", 0, 2, 1, 1),
    Sketcher.Constraint("Coincident", 1, 2, 2, 1),
    Sketcher.Constraint("Coincident", 2, 2, 3, 1),
    Sketcher.Constraint("Coincident", 3, 2, 0, 1),
    Sketcher.Constraint("Coincident", 4, 2, 5, 1),
    Sketcher.Constraint("Coincident", 5, 2, 6, 1),
    Sketcher.Constraint("Coincident", 6, 2, 7, 1),
    Sketcher.Constraint("Coincident", 7, 2, 4, 1),
    Sketcher.Constraint("Coincident", 8, 2, 9, 1),
    Sketcher.Constraint("Coincident", 9, 2, 10, 1),
    Sketcher.Constraint("Coincident", 10, 2, 11, 1),
    Sketcher.Constraint("Coincident", 11, 2, 8, 1),
    Sketcher.Constraint("Coincident", 12, 2, 13, 1),
    Sketcher.Constraint("Coincident", 13, 2, 14, 1),
    Sketcher.Constraint("Coincident", 14, 2, 15, 1),
    Sketcher.Constraint("Coincident", 15, 2, 12, 1),
    Sketcher.Constraint("Vertical", 0),
    Sketcher.Constraint("Horizontal", 1),
    Sketcher.Constraint("Vertical", 2),
    Sketcher.Constraint("Horizontal", 3),
    Sketcher.Constraint("Vertical", 4),
    Sketcher.Constraint("Horizontal", 5),
    Sketcher.Constraint("Vertical", 6),
    Sketcher.Constraint("Horizontal", 7),
    Sketcher.Constraint("Vertical", 8),
    Sketcher.Constraint("Horizontal", 9),
    Sketcher.Constraint("Vertical", 10),
    Sketcher.Constraint("Horizontal", 11),
    Sketcher.Constraint("Vertical", 12),
    Sketcher.Constraint("Horizontal", 13),
    Sketcher.Constraint("Vertical", 14),
    Sketcher.Constraint("Horizontal", 15),
    Sketcher.Constraint("PointOnObject", 0, 2, -1),
    Sketcher.Constraint("PointOnObject", 4, 2, -1),
    Sketcher.Constraint("PointOnObject", 8, 2, -1),
    Sketcher.Constraint("PointOnObject", 12, 2, -1),
    Sketcher.Constraint("Horizontal", 3, 2, 6, 2),
    Sketcher.Constraint("Horizontal", 7, 2, 10, 2),
    Sketcher.Constraint("Horizontal", 11, 2, 14, 2),
    Sketcher.Constraint("Equal", 3, 5),
    Sketcher.Constraint("Equal", 7, 9),
    Sketcher.Constraint("Equal", 11, 13),
    Sketcher.Constraint("DistanceX", 1, 2, 1, 1, Q("1 mm")),
    Sketcher.Constraint("DistanceY", 0, 2, 0, 1, Q("7 mm")),
    Sketcher.Constraint("DistanceX", -1, 1, 0, 2, Q("13 mm")),
    Sketcher.Constraint("DistanceX", -1, 1, 4, 2, Q("26 mm")),
    Sketcher.Constraint("DistanceX", -1, 1, 8, 2, Q("6 mm")),
    Sketcher.Constraint("DistanceX", 12, 2, -1, 1, Q("7 mm")),
])
sketch14.setExpression("Constraints[42]", "Params.sketch14_width")
sketch14.setExpression("Constraints[43]", "Params.sketch14_height")
pocket11 = doc.addObject("PartDesign::Pocket", "Pocket010")
body.addObject(pocket11)
pocket11.Profile = sketch14
pocket11.Type = "ThroughAll"
pocket11.Reversed = True

doc.recompute()
